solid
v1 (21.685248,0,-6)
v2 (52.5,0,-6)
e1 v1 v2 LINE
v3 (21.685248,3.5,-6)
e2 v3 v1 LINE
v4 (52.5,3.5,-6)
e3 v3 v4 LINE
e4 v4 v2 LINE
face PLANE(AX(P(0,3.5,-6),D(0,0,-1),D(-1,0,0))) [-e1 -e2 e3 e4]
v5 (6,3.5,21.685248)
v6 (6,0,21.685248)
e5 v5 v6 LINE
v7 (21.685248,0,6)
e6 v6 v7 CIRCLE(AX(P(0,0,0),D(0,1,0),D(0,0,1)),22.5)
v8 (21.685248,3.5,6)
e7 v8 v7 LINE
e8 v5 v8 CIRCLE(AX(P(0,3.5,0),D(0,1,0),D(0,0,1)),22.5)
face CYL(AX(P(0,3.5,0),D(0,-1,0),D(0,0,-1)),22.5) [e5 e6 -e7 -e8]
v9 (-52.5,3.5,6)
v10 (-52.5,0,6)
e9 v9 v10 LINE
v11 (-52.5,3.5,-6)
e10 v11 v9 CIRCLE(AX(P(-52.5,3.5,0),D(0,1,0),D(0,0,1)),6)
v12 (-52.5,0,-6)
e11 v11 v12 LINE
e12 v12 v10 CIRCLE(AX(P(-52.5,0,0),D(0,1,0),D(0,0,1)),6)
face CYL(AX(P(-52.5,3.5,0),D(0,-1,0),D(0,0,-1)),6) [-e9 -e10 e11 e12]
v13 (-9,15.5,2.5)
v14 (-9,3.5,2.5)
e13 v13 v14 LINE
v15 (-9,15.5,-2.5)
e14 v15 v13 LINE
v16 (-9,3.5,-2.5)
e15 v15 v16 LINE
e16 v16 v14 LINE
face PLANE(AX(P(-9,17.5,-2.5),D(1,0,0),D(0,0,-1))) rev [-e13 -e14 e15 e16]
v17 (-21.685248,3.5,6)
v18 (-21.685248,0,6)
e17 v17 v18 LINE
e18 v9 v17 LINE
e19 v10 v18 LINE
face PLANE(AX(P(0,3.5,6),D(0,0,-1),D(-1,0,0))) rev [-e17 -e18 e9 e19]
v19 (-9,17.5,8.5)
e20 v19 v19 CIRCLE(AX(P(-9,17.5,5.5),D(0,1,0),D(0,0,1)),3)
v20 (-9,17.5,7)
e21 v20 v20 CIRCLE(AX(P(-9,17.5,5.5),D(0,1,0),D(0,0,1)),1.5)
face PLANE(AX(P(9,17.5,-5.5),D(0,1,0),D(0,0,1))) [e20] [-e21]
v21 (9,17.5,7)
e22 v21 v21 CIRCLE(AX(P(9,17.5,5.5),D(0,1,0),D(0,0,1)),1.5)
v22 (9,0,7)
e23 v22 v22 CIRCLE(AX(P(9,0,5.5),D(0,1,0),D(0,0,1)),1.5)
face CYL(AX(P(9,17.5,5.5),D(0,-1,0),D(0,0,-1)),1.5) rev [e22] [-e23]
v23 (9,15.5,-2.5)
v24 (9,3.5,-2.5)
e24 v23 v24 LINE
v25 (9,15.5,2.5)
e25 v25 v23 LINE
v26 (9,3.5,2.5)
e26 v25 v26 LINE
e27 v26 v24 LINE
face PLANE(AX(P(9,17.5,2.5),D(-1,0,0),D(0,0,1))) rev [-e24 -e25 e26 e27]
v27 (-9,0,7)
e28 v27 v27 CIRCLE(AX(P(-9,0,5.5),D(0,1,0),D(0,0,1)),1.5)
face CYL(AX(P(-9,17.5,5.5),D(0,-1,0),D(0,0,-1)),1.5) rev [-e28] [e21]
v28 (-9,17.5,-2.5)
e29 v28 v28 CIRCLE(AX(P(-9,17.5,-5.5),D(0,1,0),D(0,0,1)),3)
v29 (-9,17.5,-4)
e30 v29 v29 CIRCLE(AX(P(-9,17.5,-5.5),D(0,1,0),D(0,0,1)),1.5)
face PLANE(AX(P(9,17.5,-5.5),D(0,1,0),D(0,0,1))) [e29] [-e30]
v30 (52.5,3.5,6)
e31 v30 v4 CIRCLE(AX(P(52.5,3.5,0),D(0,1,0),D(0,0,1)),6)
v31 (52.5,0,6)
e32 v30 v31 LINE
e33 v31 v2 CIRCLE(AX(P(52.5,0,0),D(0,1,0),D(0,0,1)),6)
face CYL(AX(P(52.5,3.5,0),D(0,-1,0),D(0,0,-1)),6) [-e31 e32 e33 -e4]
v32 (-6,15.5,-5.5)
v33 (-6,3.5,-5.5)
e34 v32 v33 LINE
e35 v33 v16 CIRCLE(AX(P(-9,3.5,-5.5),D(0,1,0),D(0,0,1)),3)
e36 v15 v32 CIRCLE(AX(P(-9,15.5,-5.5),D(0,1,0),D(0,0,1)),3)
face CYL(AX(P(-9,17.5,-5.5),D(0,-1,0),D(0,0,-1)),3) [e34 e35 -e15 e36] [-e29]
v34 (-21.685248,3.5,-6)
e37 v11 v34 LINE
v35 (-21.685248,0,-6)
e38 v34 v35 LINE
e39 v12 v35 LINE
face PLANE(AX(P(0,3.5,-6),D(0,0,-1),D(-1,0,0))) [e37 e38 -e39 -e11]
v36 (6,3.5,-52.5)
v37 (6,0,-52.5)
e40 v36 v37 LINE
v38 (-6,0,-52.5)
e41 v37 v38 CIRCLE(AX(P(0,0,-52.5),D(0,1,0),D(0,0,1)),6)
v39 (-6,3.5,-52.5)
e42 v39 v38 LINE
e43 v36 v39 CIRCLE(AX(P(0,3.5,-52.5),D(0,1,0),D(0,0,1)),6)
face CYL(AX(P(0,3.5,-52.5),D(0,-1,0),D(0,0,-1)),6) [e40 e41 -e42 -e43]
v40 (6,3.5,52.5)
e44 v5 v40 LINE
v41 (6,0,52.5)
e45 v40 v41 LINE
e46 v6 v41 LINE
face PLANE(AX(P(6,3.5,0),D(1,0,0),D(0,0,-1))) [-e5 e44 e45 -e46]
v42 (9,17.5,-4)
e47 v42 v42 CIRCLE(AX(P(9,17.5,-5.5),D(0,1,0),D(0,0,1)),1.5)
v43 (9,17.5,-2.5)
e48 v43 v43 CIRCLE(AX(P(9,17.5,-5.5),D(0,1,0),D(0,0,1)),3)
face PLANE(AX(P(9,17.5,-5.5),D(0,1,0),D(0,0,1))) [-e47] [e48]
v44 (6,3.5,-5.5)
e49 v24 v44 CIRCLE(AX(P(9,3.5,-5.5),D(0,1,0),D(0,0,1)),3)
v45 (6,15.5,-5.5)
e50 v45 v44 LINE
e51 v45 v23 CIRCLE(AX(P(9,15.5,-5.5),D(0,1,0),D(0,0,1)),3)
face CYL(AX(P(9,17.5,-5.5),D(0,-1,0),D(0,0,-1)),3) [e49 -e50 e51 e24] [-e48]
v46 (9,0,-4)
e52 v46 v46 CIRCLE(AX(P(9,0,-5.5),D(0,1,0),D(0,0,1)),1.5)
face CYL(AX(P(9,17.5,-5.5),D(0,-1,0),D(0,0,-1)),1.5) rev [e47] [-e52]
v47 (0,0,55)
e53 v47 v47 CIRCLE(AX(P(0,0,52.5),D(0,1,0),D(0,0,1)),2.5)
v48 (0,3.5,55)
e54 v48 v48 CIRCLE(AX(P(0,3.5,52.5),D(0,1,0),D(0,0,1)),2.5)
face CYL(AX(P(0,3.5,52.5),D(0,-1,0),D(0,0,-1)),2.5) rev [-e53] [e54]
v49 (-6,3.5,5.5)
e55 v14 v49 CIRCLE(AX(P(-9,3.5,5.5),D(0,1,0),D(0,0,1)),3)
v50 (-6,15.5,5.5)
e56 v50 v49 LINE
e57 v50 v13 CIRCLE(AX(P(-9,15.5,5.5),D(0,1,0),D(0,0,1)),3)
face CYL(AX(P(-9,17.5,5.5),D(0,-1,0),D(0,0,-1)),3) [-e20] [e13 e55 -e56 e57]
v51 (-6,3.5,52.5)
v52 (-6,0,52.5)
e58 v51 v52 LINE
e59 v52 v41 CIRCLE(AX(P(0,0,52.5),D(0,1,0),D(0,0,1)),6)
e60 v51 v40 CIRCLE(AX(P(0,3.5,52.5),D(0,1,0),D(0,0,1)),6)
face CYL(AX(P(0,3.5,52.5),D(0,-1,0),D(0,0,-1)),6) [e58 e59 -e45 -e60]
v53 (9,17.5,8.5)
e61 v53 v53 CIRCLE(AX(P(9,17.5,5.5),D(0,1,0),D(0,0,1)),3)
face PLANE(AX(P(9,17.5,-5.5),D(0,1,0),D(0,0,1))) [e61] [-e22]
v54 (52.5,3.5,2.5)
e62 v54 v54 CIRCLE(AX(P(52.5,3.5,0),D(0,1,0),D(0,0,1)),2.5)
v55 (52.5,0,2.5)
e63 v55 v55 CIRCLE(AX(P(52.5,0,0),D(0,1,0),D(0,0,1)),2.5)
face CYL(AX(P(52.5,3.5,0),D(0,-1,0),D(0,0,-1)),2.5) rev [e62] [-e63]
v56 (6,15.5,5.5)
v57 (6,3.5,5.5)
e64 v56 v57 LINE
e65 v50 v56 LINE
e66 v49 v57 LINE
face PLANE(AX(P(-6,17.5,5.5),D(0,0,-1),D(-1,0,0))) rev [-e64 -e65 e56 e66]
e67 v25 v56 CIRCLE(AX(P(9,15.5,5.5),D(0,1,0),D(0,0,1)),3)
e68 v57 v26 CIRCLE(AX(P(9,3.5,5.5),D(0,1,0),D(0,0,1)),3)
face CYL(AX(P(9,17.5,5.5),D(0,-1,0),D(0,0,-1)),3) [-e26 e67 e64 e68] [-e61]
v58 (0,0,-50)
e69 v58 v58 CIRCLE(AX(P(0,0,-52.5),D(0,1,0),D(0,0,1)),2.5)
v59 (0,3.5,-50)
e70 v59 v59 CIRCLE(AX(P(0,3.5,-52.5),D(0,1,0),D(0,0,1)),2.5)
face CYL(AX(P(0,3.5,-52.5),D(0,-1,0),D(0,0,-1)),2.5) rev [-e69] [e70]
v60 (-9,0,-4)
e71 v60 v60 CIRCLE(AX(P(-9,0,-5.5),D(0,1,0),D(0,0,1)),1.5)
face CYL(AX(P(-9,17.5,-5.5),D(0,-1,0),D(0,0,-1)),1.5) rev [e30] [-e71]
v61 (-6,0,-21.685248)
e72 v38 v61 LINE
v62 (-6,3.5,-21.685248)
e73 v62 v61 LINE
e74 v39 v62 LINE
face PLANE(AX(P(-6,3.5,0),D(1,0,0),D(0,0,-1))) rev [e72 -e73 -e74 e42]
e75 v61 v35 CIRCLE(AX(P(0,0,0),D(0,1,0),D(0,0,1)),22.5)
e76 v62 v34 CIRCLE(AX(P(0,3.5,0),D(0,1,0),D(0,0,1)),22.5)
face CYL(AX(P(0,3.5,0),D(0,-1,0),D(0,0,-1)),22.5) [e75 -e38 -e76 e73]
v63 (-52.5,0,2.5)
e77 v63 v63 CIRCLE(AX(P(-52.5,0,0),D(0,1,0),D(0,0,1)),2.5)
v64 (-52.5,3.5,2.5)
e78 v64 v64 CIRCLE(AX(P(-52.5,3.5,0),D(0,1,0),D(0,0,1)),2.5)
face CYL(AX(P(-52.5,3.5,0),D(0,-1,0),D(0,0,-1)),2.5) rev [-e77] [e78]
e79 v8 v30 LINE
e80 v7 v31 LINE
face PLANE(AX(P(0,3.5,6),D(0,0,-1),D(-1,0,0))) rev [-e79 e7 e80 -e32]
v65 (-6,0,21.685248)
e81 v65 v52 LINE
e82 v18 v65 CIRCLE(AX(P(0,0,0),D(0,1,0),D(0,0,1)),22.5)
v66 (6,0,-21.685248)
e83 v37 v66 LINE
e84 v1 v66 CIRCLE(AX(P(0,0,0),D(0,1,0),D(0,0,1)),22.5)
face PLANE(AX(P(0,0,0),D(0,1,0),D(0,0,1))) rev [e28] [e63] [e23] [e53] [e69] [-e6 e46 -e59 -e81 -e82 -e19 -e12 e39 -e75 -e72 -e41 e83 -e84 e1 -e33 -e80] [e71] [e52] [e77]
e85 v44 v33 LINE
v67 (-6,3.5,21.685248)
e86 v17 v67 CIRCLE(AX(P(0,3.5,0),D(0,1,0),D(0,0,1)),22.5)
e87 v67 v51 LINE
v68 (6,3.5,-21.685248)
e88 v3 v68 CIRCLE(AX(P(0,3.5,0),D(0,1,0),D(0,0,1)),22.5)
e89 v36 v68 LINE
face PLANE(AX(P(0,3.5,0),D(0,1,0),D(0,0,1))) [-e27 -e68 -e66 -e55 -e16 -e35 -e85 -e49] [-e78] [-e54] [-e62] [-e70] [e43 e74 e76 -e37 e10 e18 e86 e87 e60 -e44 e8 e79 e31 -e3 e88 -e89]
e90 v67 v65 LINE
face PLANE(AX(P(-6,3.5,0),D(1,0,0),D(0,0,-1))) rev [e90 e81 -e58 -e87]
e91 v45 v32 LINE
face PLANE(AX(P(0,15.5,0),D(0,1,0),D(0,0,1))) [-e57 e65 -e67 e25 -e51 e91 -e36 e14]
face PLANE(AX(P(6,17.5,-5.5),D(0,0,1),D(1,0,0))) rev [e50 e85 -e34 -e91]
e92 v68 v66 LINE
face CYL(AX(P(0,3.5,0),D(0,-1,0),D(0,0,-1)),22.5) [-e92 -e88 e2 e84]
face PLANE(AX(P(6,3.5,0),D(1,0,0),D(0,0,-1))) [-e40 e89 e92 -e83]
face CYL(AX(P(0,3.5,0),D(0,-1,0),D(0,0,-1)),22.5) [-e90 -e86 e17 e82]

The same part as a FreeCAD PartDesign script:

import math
import FreeCAD as App
import Part
import Sketcher
from FreeCAD import Vector
Q = App.Units.Quantity

doc = App.newDocument("Part")
params = doc.addObject("Spreadsheet::Sheet", "Params")
for row, (alias, value) in enumerate([
    ("sketch1_diameter", "5 mm"),
    ("sketch1_radius", "6 mm"),
    ("sketch1_radius2", "22.5 mm"),
    ("pad1_length", "3.5 mm"),
    ("sketch2_diameter", "3 mm"),
    ("sketch2_radius", "3 mm"),
    ("sketch2_width", "12 mm"),
    ("sketch2_height", "5 mm"),
    ("pad2_length", "14 mm"),
    ("sketch3_radius", "3 mm"),
    ("sketch3_width", "12 mm"),
    ("sketch3_height", "5 mm"),
    ("pocket1_length", "2 mm"),
    ("sketch4_diameter", "3 mm"),
    ("pocket2_length", "10 mm"),
], start=1):
    params.set(f"A{row}", alias)
    params.set(f"B{row}", "=" + value)
    params.setAlias(f"B{row}", alias)

body = doc.addObject("PartDesign::Body", "Body")

sketch1 = body.newObject("Sketcher::SketchObject", "Sketch")
sketch1.AttachmentSupport = (doc.getObject("XZ_Plane"), [""])
sketch1.MapMode = "FlatFace"
sketch1.addGeometry(Part.LineSegment(Vector(-21.7, -6, 0), Vector(-52.5, -6, 0)), False)
sketch1.addGeometry(Part.ArcOfCircle(Part.Circle(Vector(-52.5, 0, 0), Vector(0, 0, 1), 6), math.radians(90), math.radians(270)), False)
sketch1.addGeometry(Part.LineSegment(Vector(-52.5, 6, 0), Vector(-21.7, 6, 0)), False)
sketch1.addGeometry(Part.ArcOfCircle(Part.Circle(Vector(0, 0, 0), Vector(0, 0, 1), 22.5), math.radians(105), math.radians(165)), False)
sketch1.addGeometry(Part.LineSegment(Vector(-6, 21.7, 0), Vector(-6, 52.5, 0)), False)
sketch1.addGeometry(Part.ArcOfCircle(Part.Circle(Vector(0, 52.5, 0), Vector(0, 0, 1), 6), math.radians(0), math.radians(180)), False)
sketch1.addGeometry(Part.LineSegment(Vector(6, 52.5, 0), Vector(6, 21.7, 0)), False)
sketch1.addGeometry(Part.ArcOfCircle(Part.Circle(Vector(0, 0, 0), Vector(0, 0, 1), 22.5), math.radians(15), math.radians(75)), False)
sketch1.addGeometry(Part.LineSegment(Vector(21.7, 6, 0), Vector(52.5, 6, 0)), False)
sketch1.addGeometry(Part.ArcOfCircle(Part.Circle(Vector(52.5, 0, 0), Vector(0, 0, 1), 6), math.radians(-90), math.radians(90)), False)
sketch1.addGeometry(Part.LineSegment(Vector(52.5, -6, 0), Vector(21.7, -6, 0)), False)
sketch1.addGeometry(Part.ArcOfCircle(Part.Circle(Vector(0, 0, 0), Vector(0, 0, 1), 22.5), math.radians(-75), math.radians(-15)), False)
sketch1.addGeometry(Part.LineSegment(Vector(6, -21.7, 0), Vector(6, -52.5, 0)), False)
sketch1.addGeometry(Part.ArcOfCircle(Part.Circle(Vector(0, -52.5, 0), Vector(0, 0, 1), 6), math.radians(180), math.radians(360)), False)
sketch1.addGeometry(Part.LineSegment(Vector(-6, -52.5, 0), Vector(-6, -21.7, 0)), False)
sketch1.addGeometry(Part.ArcOfCircle(Part.Circle(Vector(0, 0, 0), Vector(0, 0, 1), 22.5), math.radians(-165), math.radians(-105)), False)
sketch1.addGeometry(Part.Circle(Vector(0, 52.5, 0), Vector(0, 0, 1), 2.5), False)
sketch1.addGeometry(Part.Circle(Vector(-52.5, 0, 0), Vector(0, 0, 1), 2.5), False)
sketch1.addGeometry(Part.Circle(Vector(52.5, 0, 0), Vector(0, 0, 1), 2.5), False)
sketch1.addGeometry(Part.Circle(Vector(0, -52.5, 0), Vector(0, 0, 1), 2.5), False)
sketch1.addConstraint(Sketcher.Constraint("Tangent", 0, 2, 1, 2))
sketch1.addConstraint(Sketcher.Constraint("Tangent", 1, 1, 2, 1))
sketch1.addConstraint(Sketcher.Constraint("Coincident", 2, 2, 3, 2))
sketch1.addConstraint(Sketcher.Constraint("Coincident", 3, 1, 4, 1))
sketch1.addConstraint(Sketcher.Constraint("Tangent", 4, 2, 5, 2))
sketch1.addConstraint(Sketcher.Constraint("Tangent", 5, 1, 6, 1))
sketch1.addConstraint(Sketcher.Constraint("Coincident", 6, 2, 7, 2))
sketch1.addConstraint(Sketcher.Constraint("Coincident", 7, 1, 8, 1))
sketch1.addConstraint(Sketcher.Constraint("Tangent", 8, 2, 9, 2))
sketch1.addConstraint(Sketcher.Constraint("Tangent", 9, 1, 10, 1))
sketch1.addConstraint(Sketcher.Constraint("Coincident", 10, 2, 11, 2))
sketch1.addConstraint(Sketcher.Constraint("Coincident", 11, 1, 12, 1))
sketch1.addConstraint(Sketcher.Constraint("Tangent", 12, 2, 13, 2))
sketch1.addConstraint(Sketcher.Constraint("Tangent", 13, 1, 14, 1))
sketch1.addConstraint(Sketcher.Constraint("Coincident", 14, 2, 15, 2))
sketch1.addConstraint(Sketcher.Constraint("Coincident", 15, 1, 0, 1))
sketch1.addConstraint(Sketcher.Constraint("Horizontal", 0))
sketch1.addConstraint(Sketcher.Constraint("Horizontal", 2))
sketch1.addConstraint(Sketcher.Constraint("Vertical", 4))
sketch1.addConstraint(Sketcher.Constraint("Vertical", 6))
sketch1.addConstraint(Sketcher.Constraint("Horizontal", 8))
sketch1.addConstraint(Sketcher.Constraint("Horizontal", 10))
sketch1.addConstraint(Sketcher.Constraint("Vertical", 12))
sketch1.addConstraint(Sketcher.Constraint("Vertical", 14))
sketch1.addConstraint(Sketcher.Constraint("Coincident", 3, 3, -1, 1))
sketch1.addConstraint(Sketcher.Constraint("Coincident", 7, 3, -1, 1))
sketch1.addConstraint(Sketcher.Constraint("Coincident", 11, 3, -1, 1))
sketch1.addConstraint(Sketcher.Constraint("Coincident", 15, 3, -1, 1))
sketch1.addConstraint(Sketcher.Constraint("Coincident", 16, 3, 5, 3))
sketch1.addConstraint(Sketcher.Constraint("Coincident", 17, 3, 1, 3))
sketch1.addConstraint(Sketcher.Constraint("Coincident", 18, 3, 9, 3))
sketch1.addConstraint(Sketcher.Constraint("Coincident", 19, 3, 13, 3))
sketch1.addConstraint(Sketcher.Constraint("Equal", 1, 5))
sketch1.addConstraint(Sketcher.Constraint("Equal", 3, 7))
sketch1.addConstraint(Sketcher.Constraint("Equal", 5, 9))
sketch1.addConstraint(Sketcher.Constraint("Equal", 7, 11))
sketch1.addConstraint(Sketcher.Constraint("Equal", 9, 13))
sketch1.addConstraint(Sketcher.Constraint("Equal", 11, 15))
sketch1.addConstraint(Sketcher.Constraint("Equal", 16, 17))
sketch1.addConstraint(Sketcher.Constraint("Equal", 17, 18))
sketch1.addConstraint(Sketcher.Constraint("Equal", 18, 19))
sketch1.addConstraint(Sketcher.Constraint("Symmetric", 1, 3, 9, 3, -1, 1))
sketch1.addConstraint(Sketcher.Constraint("Symmetric", 5, 3, 13, 3, -1, 1))
sketch1.addConstraint(Sketcher.Constraint("PointOnObject", 1, 3, -1))
sketch1.addConstraint(Sketcher.Constraint("PointOnObject", 5, 3, -2))
sketch1.addConstraint(Sketcher.Constraint("Equal", 10, 4))
sketch1.addConstraint(Sketcher.Constraint("Diameter", 16, Q("5 mm")))
sketch1.addConstraint(Sketcher.Constraint("Radius", 1, Q("6 mm")))
sketch1.addConstraint(Sketcher.Constraint("Radius", 3, Q("22.5 mm")))
sketch1.addConstraint(Sketcher.Constraint("DistanceX", 1, 3, 9, 3, Q("105 mm")))
sketch1.setExpression("Constraints[46]", "Params.sketch1_diameter")
sketch1.setExpression("Constraints[47]", "Params.sketch1_radius")
sketch1.setExpression("Constraints[48]", "Params.sketch1_radius2")
pad1 = body.newObject("PartDesign::Pad", "Pad")
pad1.Profile = sketch1
pad1.setExpression("Length", "Params.pad1_length")
pad1.Reversed = True

sketch2 = body.newObject("Sketcher::SketchObject", "Sketch001")
sketch2.AttachmentSupport = (doc.getObject("XZ_Plane"), [""])
sketch2.MapMode = "FlatFace"
sketch2.AttachmentOffset = App.Placement(Vector(0, 0, -3.5), App.Rotation())
sketch2.addGeometry(Part.LineSegment(Vector(-6, 5.5, 0), Vector(6, 5.5, 0)), False)
sketch2.addGeometry(Part.ArcOfCircle(Part.Circle(Vector(9, 5.5, 0), Vector(0, 0, 1), 3), math.radians(-90), math.radians(180)), False)
sketch2.addGeometry(Part.LineSegment(Vector(9, 2.5, 0), Vector(9, -2.5, 0)), False)
sketch2.addGeometry(Part.ArcOfCircle(Part.Circle(Vector(9, -5.5, 0), Vector(0, 0, 1), 3), math.radians(180), math.radians(450)), False)
sketch2.addGeometry(Part.LineSegment(Vector(6, -5.5, 0), Vector(-6, -5.5, 0)), False)
sketch2.addGeometry(Part.ArcOfCircle(Part.Circle(Vector(-9, -5.5, 0), Vector(0, 0, 1), 3), math.radians(90), math.radians(360)), False)
sketch2.addGeometry(Part.LineSegment(Vector(-9, -2.5, 0), Vector(-9, 2.5, 0)), False)
sketch2.addGeometry(Part.ArcOfCircle(Part.Circle(Vector(-9, 5.5, 0), Vector(0, 0, 1), 3), math.radians(0), math.radians(270)), False)
sketch2.addGeometry(Part.Circle(Vector(-9, 5.5, 0), Vector(0, 0, 1), 1.5), False)
sketch2.addGeometry(Part.Circle(Vector(9, 5.5, 0), Vector(0, 0, 1), 1.5), False)
sketch2.addGeometry(Part.Circle(Vector(-9, -5.5, 0), Vector(0, 0, 1), 1.5), False)
sketch2.addGeometry(Part.Circle(Vector(9, -5.5, 0), Vector(0, 0, 1), 1.5), False)
sketch2.addConstraint(Sketcher.Constraint("Coincident", 0, 2, 1, 2))
sketch2.addConstraint(Sketcher.Constraint("Coincident", 1, 1, 2, 1))
sketch2.addConstraint(Sketcher.Constraint("Coincident", 2, 2, 3, 2))
sketch2.addConstraint(Sketcher.Constraint("Coincident", 3, 1, 4, 1))
sketch2.addConstraint(Sketcher.Constraint("Coincident", 4, 2, 5, 2))
sketch2.addConstraint(Sketcher.Constraint("Coincident", 5, 1, 6, 1))
sketch2.addConstraint(Sketcher.Constraint("Coincident", 6, 2, 7, 2))
sketch2.addConstraint(Sketcher.Constraint("Coincident", 7, 1, 0, 1))
sketch2.addConstraint(Sketcher.Constraint("Horizontal", 0))
sketch2.addConstraint(Sketcher.Constraint("Vertical", 2))
sketch2.addConstraint(Sketcher.Constraint("Horizontal", 4))
sketch2.addConstraint(Sketcher.Constraint("Vertical", 6))
sketch2.addConstraint(Sketcher.Constraint("Coincident", 8, 3, 7, 3))
sketch2.addConstraint(Sketcher.Constraint("Coincident", 9, 3, 1, 3))
sketch2.addConstraint(Sketcher.Constraint("Coincident", 10, 3, 5, 3))
sketch2.addConstraint(Sketcher.Constraint("Coincident", 11, 3, 3, 3))
sketch2.addConstraint(Sketcher.Constraint("Equal", 1, 3))
sketch2.addConstraint(Sketcher.Constraint("Equal", 3, 5))
sketch2.addConstraint(Sketcher.Constraint("Equal", 5, 7))
sketch2.addConstraint(Sketcher.Constraint("Equal", 8, 9))
sketch2.addConstraint(Sketcher.Constraint("Equal", 9, 10))
sketch2.addConstraint(Sketcher.Constraint("Equal", 10, 11))
sketch2.addConstraint(Sketcher.Constraint("Symmetric", 1, 3, 5, 3, -1, 1))
sketch2.addConstraint(Sketcher.Constraint("Symmetric", 3, 3, 7, 3, -1, 1))
sketch2.addConstraint(Sketcher.Constraint("Symmetric", 3, 3, 5, 3, -2))
sketch2.addConstraint(Sketcher.Constraint("Horizontal", 9, 3, 0, 2))
sketch2.addConstraint(Sketcher.Constraint("Horizontal", 11, 3, 3, 1))
sketch2.addConstraint(Sketcher.Constraint("Vertical", 11, 3, 1, 1))
sketch2.addConstraint(Sketcher.Constraint("Vertical", 10, 3, 5, 1))
sketch2.addConstraint(Sketcher.Constraint("Diameter", 8, Q("3 mm")))
sketch2.addConstraint(Sketcher.Constraint("Radius", 1, Q("3 mm")))
sketch2.addConstraint(Sketcher.Constraint("DistanceX", 0, 1, 0, 2, Q("12 mm")))
sketch2.addConstraint(Sketcher.Constraint("DistanceY", 2, 2, 2, 1, Q("5 mm")))
sketch2.setExpression("Constraints[29]", "Params.sketch2_diameter")
sketch2.setExpression("Constraints[30]", "Params.sketch2_radius")
sketch2.setExpression("Constraints[31]", "Params.sketch2_width")
sketch2.setExpression("Constraints[32]", "Params.sketch2_height")
pad2 = body.newObject("PartDesign::Pad", "Pad001")
pad2.Profile = sketch2
pad2.setExpression("Length", "Params.pad2_length")
pad2.Reversed = True

sketch3 = body.newObject("Sketcher::SketchObject", "Sketch002")
sketch3.AttachmentSupport = (doc.getObject("XZ_Plane"), [""])
sketch3.MapMode = "FlatFace"
sketch3.AttachmentOffset = App.Placement(Vector(0, 0, -15.5), App.Rotation())
sketch3.addGeometry(Part.ArcOfCircle(Part.Circle(Vector(9, -5.5, 0), Vector(0, 0, 1), 3), math.radians(90), math.radians(180)), False)
sketch3.addGeometry(Part.LineSegment(Vector(6, -5.5, 0), Vector(-6, -5.5, 0)), False)
sketch3.addGeometry(Part.ArcOfCircle(Part.Circle(Vector(-9, -5.5, 0), Vector(0, 0, 1), 3), math.radians(0), math.radians(90)), False)
sketch3.addGeometry(Part.LineSegment(Vector(-9, -2.5, 0), Vector(-9, 2.5, 0)), False)
sketch3.addGeometry(Part.ArcOfCircle(Part.Circle(Vector(-9, 5.5, 0), Vector(0, 0, 1), 3), math.radians(-90), math.radians(0)), False)
sketch3.addGeometry(Part.LineSegment(Vector(-6, 5.5, 0), Vector(6, 5.5, 0)), False)
sketch3.addGeometry(Part.ArcOfCircle(Part.Circle(Vector(9, 5.5, 0), Vector(0, 0, 1), 3), math.radians(180), math.radians(270)), False)
sketch3.addGeometry(Part.LineSegment(Vector(9, 2.5, 0), Vector(9, -2.5, 0)), False)
sketch3.addConstraint(Sketcher.Constraint("Coincident", 0, 2, 1, 1))
sketch3.addConstraint(Sketcher.Constraint("Coincident", 1, 2, 2, 1))
sketch3.addConstraint(Sketcher.Constraint("Coincident", 2, 2, 3, 1))
sketch3.addConstraint(Sketcher.Constraint("Coincident", 3, 2, 4, 1))
sketch3.addConstraint(Sketcher.Constraint("Coincident", 4, 2, 5, 1))
sketch3.addConstraint(Sketcher.Constraint("Coincident", 5, 2, 6, 1))
sketch3.addConstraint(Sketcher.Constraint("Coincident", 6, 2, 7, 1))
sketch3.addConstraint(Sketcher.Constraint("Coincident", 7, 2, 0, 1))
sketch3.addConstraint(Sketcher.Constraint("Horizontal", 1))
sketch3.addConstraint(Sketcher.Constraint("Vertical", 3))
sketch3.addConstraint(Sketcher.Constraint("Horizontal", 5))
sketch3.addConstraint(Sketcher.Constraint("Vertical", 7))
sketch3.addConstraint(Sketcher.Constraint("Equal", 0, 2))
sketch3.addConstraint(Sketcher.Constraint("Equal", 2, 4))
sketch3.addConstraint(Sketcher.Constraint("Equal", 4, 6))
sketch3.addConstraint(Sketcher.Constraint("Symmetric", 0, 3, 4, 3, -1, 1))
sketch3.addConstraint(Sketcher.Constraint("Symmetric", 2, 3, 6, 3, -1, 1))
sketch3.addConstraint(Sketcher.Constraint("Symmetric", 0, 3, 2, 3, -2))
sketch3.addConstraint(Sketcher.Constraint("Horizontal", 2, 3, 0, 2))
sketch3.addConstraint(Sketcher.Constraint("Horizontal", 6, 3, 4, 2))
sketch3.addConstraint(Sketcher.Constraint("Vertical", 4, 3, 2, 2))
sketch3.addConstraint(Sketcher.Constraint("Vertical", 0, 3, 6, 2))
sketch3.addConstraint(Sketcher.Constraint("Radius", 0, Q("3 mm")))
sketch3.addConstraint(Sketcher.Constraint("DistanceX", 1, 2, 1, 1, Q("12 mm")))
sketch3.addConstraint(Sketcher.Constraint("DistanceY", 3, 1, 3, 2, Q("5 mm")))
sketch3.setExpression("Constraints[22]", "Params.sketch3_radius")
sketch3.setExpression("Constraints[23]", "Params.sketch3_width")
sketch3.setExpression("Constraints[24]", "Params.sketch3_height")
pocket1 = body.newObject("PartDesign::Pocket", "Pocket")
pocket1.Profile = sketch3
pocket1.setExpression("Length", "Params.pocket1_length")

sketch4 = body.newObject("Sketcher::SketchObject", "Sketch003")
sketch4.AttachmentSupport = (doc.getObject("XZ_Plane"), [""])
sketch4.MapMode = "FlatFace"
sketch4.AttachmentOffset = App.Placement(Vector(0, 0, 6.5), App.Rotation())
sketch4.addGeometry(Part.Circle(Vector(-9, 5.5, 0), Vector(0, 0, 1), 1.5), False)
sketch4.addGeometry(Part.Circle(Vector(9, 5.5, 0), Vector(0, 0, 1), 1.5), False)
sketch4.addGeometry(Part.Circle(Vector(-9, -5.5, 0), Vector(0, 0, 1), 1.5), False)
sketch4.addGeometry(Part.Circle(Vector(9, -5.5, 0), Vector(0, 0, 1), 1.5), False)
sketch4.addConstraint(Sketcher.Constraint("Equal", 0, 1))
sketch4.addConstraint(Sketcher.Constraint("Equal", 1, 2))
sketch4.addConstraint(Sketcher.Constraint("Equal", 2, 3))
sketch4.addConstraint(Sketcher.Constraint("Symmetric", 1, 3, 2, 3, -1, 1))
sketch4.addConstraint(Sketcher.Constraint("Symmetric", 0, 3, 3, 3, -1, 1))
sketch4.addConstraint(Sketcher.Constraint("Symmetric", 0, 3, 1, 3, -2))
sketch4.addConstraint(Sketcher.Constraint("Diameter", 0, Q("3 mm")))
sketch4.addConstraint(Sketcher.Constraint("DistanceX", 0, 3, -1, 1, Q("9 mm")))
sketch4.addConstraint(Sketcher.Constraint("DistanceY", 2, 3, 0, 3, Q("11 mm")))
sketch4.setExpression("Constraints[6]", "Params.sketch4_diameter")
pocket2 = body.newObject("PartDesign::Pocket", "Pocket001")
pocket2.Profile = sketch4
pocket2.setExpression("Length", "Params.pocket2_length")

doc.recompute()
